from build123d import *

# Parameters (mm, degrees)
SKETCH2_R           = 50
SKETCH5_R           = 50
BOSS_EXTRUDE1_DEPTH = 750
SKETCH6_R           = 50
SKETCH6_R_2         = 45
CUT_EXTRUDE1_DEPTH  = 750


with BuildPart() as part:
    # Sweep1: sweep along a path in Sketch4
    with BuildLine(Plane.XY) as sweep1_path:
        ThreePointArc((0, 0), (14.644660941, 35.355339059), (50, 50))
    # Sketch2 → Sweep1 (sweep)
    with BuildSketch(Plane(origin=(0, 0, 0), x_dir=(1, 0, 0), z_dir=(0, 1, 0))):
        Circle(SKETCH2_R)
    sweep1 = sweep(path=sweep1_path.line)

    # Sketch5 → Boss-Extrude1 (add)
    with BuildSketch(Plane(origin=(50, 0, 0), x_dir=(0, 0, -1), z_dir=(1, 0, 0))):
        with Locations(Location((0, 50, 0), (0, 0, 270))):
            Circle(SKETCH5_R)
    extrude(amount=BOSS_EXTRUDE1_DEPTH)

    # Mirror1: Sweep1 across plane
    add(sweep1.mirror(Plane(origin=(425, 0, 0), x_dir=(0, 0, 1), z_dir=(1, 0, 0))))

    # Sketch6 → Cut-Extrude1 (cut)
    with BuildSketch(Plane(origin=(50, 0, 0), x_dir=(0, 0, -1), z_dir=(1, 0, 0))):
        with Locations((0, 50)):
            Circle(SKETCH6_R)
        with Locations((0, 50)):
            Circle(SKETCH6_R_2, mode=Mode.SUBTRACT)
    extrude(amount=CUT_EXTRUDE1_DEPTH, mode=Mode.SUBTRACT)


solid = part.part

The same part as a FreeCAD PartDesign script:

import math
import FreeCAD as App
import Part
import Sketcher
from FreeCAD import Vector
Q = App.Units.Quantity

doc = App.newDocument("Part")
body = doc.addObject("PartDesign::Body", "Body")

sketch1 = doc.addObject("Sketcher::SketchObject", "Sketch")
body.addObject(sketch1)
sketch1.AttachmentSupport = (doc.XZ_Plane, [""])
sketch1.MapMode = "FlatFace"
sketch1.addGeometry(Part.Circle(Vector(0, 0, 0), Vector(0, 0, 1), 50), False)
sketch1.addConstraint(Sketcher.Constraint("Coincident", 0, 3, -1, 1))
sketch1.addConstraint(Sketcher.Constraint("Diameter", 0, Q("100 mm")))

sketch2 = doc.addObject("Sketcher::SketchObject", "Sketch001")
body.addObject(sketch2)
sketch2.AttachmentSupport = (doc.XY_Plane, [""])
sketch2.MapMode = "FlatFace"
sketch2.addGeometry(Part.ArcOfCircle(Part.Circle(Vector(50, 0, 0), Vector(0, 0, 1), 50), math.radians(90), math.radians(180)), False)
sketch2.addConstraint(Sketcher.Constraint("Coincident", 0, 2, -1, 1))
sketch2.addConstraint(Sketcher.Constraint("PointOnObject", 0, 3, -1))
sketch2.addConstraint(Sketcher.Constraint("Radius", 0, Q("50 mm")))
sketch2.addConstraint(Sketcher.Constraint("DistanceX", -1, 1, 0, 1, Q("50 mm")))
doc.recompute()

additivepipe = doc.addObject("PartDesign::AdditivePipe", "AdditivePipe")
body.addObject(additivepipe)
additivepipe.Profile = sketch1
additivepipe.Spine = (sketch2, ["Edge1"])

sketch3 = doc.addObject("Sketcher::SketchObject", "Sketch002")
body.addObject(sketch3)
sketch3.AttachmentSupport = (doc.YZ_Plane, [""])
sketch3.MapMode = "FlatFace"
sketch3.AttachmentOffset = App.Placement(Vector(0, 0, 50), App.Rotation())
sketch3.addGeometry(Part.Circle(Vector(50, 0, 0), Vector(0, 0, 1), 50), False)
sketch3.addConstraint(Sketcher.Constraint("PointOnObject", 0, 3, -1))
sketch3.addConstraint(Sketcher.Constraint("Diameter", 0, Q("100 mm")))
sketch3.addConstraint(Sketcher.Constraint("DistanceX", -1, 1, 0, 3, Q("50 mm")))
pad1 = doc.addObject("PartDesign::Pad", "Pad")
body.addObject(pad1)
pad1.Profile = sketch3
pad1.Length = 750
doc.recompute()

datumplane = doc.addObject("PartDesign::Plane", "DatumPlane")
body.addObject(datumplane)
datumplane.AttachmentSupport = (doc.YZ_Plane, [""])
datumplane.MapMode = "FlatFace"
datumplane.AttachmentOffset = App.Placement(Vector(0, 0, 425), App.Rotation())
mirrored = doc.addObject("PartDesign::Mirrored", "Mirrored")
body.addObject(mirrored)
mirrored.Originals = [additivepipe]
mirrored.MirrorPlane = (datumplane, [""])
body.Tip = mirrored

sketch4 = doc.addObject("Sketcher::SketchObject", "Sketch003")
body.addObject(sketch4)
sketch4.AttachmentSupport = (doc.YZ_Plane, [""])
sketch4.MapMode = "FlatFace"
sketch4.AttachmentOffset = App.Placement(Vector(0, 0, 50), App.Rotation())
sketch4.addGeometry(Part.Circle(Vector(50, 0, 0), Vector(0, 0, 1), 50), False)
sketch4.addGeometry(Part.Circle(Vector(50, 0, 0), Vector(0, 0, 1), 45), False)
sketch4.addConstraint(Sketcher.Constraint("Coincident", 1, 3, 0, 3))
sketch4.addConstraint(Sketcher.Constraint("PointOnObject", 0, 3, -1))
sketch4.addConstraint(Sketcher.Constraint("Diameter", 0, Q("100 mm")))
sketch4.addConstraint(Sketcher.Constraint("Diameter", 1, Q("90 mm")))
sketch4.addConstraint(Sketcher.Constraint("DistanceX", -1, 1, 0, 3, Q("50 mm")))
pocket1 = doc.addObject("PartDesign::Pocket", "Pocket")
body.addObject(pocket1)
pocket1.Profile = sketch4
pocket1.Length = 750
pocket1.Reversed = True

doc.recompute()
